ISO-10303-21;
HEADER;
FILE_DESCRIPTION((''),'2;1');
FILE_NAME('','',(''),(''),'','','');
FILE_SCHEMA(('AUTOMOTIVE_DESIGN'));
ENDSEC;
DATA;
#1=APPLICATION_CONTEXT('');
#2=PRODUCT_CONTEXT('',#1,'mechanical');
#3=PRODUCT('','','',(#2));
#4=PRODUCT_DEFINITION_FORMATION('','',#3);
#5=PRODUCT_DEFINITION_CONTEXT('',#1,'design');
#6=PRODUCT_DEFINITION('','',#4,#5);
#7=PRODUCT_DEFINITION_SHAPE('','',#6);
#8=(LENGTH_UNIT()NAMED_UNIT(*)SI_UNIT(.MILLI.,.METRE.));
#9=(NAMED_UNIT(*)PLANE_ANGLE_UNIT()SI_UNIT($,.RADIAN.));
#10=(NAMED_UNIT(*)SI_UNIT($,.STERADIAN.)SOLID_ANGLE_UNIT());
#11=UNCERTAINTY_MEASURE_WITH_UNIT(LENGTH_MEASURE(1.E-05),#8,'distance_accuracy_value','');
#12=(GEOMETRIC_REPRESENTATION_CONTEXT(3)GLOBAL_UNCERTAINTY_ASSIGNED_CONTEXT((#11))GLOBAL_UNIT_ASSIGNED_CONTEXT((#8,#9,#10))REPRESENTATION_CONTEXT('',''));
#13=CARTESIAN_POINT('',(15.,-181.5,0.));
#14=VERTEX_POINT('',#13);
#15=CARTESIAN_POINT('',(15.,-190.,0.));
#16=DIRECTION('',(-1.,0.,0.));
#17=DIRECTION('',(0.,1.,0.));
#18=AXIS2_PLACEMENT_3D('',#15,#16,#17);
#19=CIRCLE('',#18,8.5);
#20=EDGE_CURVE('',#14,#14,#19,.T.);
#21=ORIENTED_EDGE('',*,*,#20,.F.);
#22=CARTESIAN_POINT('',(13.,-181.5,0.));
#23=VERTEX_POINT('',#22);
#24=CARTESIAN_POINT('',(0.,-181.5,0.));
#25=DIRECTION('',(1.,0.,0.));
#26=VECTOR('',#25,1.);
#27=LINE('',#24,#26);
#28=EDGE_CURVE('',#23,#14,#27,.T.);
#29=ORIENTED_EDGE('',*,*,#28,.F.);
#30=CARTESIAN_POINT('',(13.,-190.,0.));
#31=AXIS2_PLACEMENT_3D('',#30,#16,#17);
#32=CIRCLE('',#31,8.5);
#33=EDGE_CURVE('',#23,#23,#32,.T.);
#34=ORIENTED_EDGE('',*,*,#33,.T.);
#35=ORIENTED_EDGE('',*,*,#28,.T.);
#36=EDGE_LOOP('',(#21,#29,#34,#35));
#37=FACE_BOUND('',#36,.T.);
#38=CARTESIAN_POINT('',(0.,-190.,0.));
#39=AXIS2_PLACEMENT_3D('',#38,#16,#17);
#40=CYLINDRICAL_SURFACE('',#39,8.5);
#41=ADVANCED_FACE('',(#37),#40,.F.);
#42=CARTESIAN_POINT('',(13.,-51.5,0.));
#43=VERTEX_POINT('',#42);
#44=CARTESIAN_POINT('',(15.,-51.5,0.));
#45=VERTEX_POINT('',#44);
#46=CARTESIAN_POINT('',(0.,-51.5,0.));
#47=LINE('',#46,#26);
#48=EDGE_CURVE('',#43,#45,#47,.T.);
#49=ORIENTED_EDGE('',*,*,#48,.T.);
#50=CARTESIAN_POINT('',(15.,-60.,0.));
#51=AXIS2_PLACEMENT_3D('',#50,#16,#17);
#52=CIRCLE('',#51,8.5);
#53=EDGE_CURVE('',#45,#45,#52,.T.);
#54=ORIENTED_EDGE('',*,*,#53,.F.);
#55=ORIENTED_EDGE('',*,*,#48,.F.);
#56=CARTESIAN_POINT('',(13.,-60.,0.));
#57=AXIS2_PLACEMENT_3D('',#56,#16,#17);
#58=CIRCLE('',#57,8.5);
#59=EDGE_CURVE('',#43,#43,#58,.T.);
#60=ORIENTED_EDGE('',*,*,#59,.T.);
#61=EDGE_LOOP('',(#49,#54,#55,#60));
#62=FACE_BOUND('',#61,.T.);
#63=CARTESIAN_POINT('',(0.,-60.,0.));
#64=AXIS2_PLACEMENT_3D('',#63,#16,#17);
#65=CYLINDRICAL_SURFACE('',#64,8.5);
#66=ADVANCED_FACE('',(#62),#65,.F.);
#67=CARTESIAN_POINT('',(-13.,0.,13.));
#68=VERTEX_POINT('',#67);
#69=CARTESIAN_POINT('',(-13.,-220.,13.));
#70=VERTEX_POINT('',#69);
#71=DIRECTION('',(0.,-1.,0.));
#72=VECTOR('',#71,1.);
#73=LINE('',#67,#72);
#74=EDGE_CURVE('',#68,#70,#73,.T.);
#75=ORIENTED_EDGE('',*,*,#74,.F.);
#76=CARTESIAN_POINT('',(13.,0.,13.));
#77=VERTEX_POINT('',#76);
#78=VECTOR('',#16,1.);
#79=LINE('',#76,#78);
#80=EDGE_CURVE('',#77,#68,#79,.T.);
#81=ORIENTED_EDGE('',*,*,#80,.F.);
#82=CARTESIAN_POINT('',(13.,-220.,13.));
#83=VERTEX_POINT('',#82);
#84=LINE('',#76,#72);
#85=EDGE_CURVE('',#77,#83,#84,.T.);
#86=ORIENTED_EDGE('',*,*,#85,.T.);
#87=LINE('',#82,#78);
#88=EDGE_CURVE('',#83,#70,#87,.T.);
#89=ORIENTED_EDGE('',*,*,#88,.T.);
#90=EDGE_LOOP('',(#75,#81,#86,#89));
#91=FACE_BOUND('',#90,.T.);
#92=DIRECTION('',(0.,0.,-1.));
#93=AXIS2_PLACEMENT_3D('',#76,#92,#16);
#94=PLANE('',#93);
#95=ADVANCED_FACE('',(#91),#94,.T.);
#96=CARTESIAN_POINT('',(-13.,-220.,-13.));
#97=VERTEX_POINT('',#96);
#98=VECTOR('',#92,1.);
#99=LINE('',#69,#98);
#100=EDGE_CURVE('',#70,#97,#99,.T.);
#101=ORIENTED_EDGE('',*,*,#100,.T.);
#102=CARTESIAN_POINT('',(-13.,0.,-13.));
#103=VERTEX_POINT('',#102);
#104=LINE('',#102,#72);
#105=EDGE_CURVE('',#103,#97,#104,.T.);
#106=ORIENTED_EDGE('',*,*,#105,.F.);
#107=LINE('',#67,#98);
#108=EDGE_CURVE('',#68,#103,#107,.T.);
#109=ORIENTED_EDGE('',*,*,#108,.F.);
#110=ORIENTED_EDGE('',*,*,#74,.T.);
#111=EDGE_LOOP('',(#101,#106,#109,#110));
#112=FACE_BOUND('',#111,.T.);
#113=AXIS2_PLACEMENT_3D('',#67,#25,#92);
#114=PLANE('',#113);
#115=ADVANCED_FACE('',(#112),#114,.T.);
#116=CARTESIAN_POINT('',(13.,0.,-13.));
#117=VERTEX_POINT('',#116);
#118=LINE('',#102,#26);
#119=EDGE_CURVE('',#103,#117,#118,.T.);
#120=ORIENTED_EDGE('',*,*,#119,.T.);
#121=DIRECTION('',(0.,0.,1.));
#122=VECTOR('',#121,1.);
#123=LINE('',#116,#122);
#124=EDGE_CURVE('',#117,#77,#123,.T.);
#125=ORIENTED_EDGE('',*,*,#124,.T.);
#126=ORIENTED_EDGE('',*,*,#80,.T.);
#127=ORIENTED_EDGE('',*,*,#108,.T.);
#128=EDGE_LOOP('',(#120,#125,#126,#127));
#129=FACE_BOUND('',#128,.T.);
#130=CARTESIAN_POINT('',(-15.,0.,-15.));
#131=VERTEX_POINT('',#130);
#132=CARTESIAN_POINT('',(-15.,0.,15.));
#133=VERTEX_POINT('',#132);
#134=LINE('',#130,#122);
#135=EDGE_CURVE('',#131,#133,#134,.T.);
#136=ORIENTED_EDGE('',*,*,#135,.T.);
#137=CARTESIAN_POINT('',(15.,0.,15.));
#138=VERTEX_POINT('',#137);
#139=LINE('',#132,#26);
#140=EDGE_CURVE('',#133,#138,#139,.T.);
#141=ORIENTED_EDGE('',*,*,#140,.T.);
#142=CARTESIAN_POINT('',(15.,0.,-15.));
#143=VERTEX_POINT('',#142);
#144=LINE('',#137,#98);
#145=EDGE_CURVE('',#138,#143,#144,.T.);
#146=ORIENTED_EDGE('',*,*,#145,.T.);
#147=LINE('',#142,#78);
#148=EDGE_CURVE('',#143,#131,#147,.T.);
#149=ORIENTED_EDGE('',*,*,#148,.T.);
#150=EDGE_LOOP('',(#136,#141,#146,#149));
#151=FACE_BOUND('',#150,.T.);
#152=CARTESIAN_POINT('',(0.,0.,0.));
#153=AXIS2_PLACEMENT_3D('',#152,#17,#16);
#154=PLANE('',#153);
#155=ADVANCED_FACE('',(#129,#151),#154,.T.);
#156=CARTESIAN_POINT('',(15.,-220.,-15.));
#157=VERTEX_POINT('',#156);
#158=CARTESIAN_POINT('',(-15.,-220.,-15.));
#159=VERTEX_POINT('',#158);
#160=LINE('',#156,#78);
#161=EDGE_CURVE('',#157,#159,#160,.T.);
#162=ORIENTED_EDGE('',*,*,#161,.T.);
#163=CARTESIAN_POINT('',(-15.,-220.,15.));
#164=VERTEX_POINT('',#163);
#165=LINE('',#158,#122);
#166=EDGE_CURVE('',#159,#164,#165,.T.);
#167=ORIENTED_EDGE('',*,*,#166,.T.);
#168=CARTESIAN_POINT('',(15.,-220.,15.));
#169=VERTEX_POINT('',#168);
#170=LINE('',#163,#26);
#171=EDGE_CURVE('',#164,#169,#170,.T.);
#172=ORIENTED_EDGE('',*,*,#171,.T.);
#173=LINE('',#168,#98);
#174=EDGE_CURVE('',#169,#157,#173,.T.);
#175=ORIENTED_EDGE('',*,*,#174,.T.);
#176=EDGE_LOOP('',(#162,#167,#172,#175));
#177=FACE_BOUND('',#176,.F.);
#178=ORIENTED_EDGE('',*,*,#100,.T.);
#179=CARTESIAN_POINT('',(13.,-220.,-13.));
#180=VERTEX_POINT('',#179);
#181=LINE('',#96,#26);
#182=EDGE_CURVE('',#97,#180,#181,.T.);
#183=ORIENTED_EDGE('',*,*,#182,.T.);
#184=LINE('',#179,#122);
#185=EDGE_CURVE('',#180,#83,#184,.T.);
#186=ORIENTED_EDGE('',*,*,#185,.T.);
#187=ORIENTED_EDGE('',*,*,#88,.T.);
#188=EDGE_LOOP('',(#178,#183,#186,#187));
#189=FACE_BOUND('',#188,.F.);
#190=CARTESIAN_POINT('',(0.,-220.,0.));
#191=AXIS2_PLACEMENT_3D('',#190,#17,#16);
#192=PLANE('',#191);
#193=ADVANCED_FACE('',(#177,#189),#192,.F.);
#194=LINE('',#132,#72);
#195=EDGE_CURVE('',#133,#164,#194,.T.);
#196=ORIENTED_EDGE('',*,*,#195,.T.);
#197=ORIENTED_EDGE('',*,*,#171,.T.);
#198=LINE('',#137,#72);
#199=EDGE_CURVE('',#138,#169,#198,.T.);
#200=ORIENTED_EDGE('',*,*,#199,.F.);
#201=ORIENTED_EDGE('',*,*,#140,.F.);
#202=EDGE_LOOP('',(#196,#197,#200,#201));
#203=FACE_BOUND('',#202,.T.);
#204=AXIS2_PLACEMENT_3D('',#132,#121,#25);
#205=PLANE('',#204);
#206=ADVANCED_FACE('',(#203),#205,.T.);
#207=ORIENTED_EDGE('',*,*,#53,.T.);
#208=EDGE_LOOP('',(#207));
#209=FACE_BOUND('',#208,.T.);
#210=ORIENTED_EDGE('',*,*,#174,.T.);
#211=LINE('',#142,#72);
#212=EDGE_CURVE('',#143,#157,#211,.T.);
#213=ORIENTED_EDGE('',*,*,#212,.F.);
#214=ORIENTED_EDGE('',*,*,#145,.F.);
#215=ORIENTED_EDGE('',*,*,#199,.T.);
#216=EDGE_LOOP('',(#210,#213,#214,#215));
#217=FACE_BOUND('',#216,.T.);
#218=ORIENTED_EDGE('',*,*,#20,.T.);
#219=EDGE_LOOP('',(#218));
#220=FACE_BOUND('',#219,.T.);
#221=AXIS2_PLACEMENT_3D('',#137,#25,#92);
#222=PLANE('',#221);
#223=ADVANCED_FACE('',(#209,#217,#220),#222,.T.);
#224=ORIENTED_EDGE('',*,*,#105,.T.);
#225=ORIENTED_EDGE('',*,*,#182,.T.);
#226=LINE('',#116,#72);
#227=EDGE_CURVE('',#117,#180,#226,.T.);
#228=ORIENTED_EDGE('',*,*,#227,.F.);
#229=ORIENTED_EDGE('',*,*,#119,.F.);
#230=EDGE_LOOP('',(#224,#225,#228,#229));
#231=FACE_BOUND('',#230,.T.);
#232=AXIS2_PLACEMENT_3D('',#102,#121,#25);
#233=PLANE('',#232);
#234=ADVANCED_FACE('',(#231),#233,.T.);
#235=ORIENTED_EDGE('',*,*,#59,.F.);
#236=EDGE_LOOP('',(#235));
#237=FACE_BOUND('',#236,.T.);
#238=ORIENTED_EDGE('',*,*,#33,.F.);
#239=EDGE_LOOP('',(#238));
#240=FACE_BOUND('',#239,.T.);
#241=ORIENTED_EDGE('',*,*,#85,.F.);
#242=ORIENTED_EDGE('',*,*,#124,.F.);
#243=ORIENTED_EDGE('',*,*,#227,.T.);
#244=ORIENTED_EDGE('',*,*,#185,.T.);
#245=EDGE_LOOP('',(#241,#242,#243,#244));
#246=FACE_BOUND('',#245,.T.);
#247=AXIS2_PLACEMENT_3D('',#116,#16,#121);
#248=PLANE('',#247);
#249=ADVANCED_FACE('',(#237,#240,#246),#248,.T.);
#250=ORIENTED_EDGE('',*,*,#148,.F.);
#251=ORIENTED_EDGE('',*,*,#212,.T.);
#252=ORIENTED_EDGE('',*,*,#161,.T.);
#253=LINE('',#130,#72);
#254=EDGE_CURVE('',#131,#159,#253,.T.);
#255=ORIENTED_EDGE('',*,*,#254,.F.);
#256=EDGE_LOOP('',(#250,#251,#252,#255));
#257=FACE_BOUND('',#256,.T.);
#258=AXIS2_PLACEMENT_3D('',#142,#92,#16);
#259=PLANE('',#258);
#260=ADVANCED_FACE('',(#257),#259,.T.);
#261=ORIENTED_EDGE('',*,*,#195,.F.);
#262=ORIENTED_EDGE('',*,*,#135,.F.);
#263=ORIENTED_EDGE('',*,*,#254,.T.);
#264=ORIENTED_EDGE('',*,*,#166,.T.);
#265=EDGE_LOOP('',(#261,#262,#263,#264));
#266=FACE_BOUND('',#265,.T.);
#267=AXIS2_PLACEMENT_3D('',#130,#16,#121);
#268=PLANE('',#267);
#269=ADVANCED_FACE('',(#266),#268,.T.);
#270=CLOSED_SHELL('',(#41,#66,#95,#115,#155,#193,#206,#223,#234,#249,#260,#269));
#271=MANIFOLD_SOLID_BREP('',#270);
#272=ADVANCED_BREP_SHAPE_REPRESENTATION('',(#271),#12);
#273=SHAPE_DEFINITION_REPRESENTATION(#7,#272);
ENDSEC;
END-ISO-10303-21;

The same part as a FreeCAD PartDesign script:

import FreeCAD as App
import Part
import Sketcher
Q = App.Units.Quantity

doc = App.newDocument("Part")
params = doc.addObject("Spreadsheet::Sheet", "Params")
for row, (alias, value) in enumerate([
    ("sketch1_width", "30 mm"),
    ("pad1_length", "220 mm"),
    ("sketch2_diameter", "17 mm"),
], start=1):
    params.set(f"A{row}", alias)
    params.set(f"B{row}", "=" + value)
    params.setAlias(f"B{row}", alias)

body = doc.addObject("PartDesign::Body", "Body")

# Sketch on XZ plane
sketch1 = body.newObject("Sketcher::SketchObject", "Sketch")
sketch1.AttachmentSupport = (doc.getObject("XZ_Plane"), [""])
sketch1.MapMode = "FlatFace"
sketch1.addGeometry(Part.LineSegment(App.Vector(-15, -15, 0), App.Vector(-15, 15, 0)), False)
sketch1.addGeometry(Part.LineSegment(App.Vector(-15, 15, 0), App.Vector(15, 15, 0)), False)
sketch1.addGeometry(Part.LineSegment(App.Vector(15, 15, 0), App.Vector(15, -15, 0)), False)
sketch1.addGeometry(Part.LineSegment(App.Vector(15, -15, 0), App.Vector(-15, -15, 0)), False)
sketch1.addGeometry(Part.LineSegment(App.Vector(13, -13, 0), App.Vector(13, 13, 0)), False)
sketch1.addGeometry(Part.LineSegment(App.Vector(13, 13, 0), App.Vector(-13, 13, 0)), False)
sketch1.addGeometry(Part.LineSegment(App.Vector(-13, 13, 0), App.Vector(-13, -13, 0)), False)
sketch1.addGeometry(Part.LineSegment(App.Vector(-13, -13, 0), App.Vector(13, -13, 0)), False)
sketch1.addConstraint(Sketcher.Constraint("Coincident", 0, 2, 1, 1))
sketch1.addConstraint(Sketcher.Constraint("Coincident", 1, 2, 2, 1))
sketch1.addConstraint(Sketcher.Constraint("Coincident", 2, 2, 3, 1))
sketch1.addConstraint(Sketcher.Constraint("Coincident", 3, 2, 0, 1))
sketch1.addConstraint(Sketcher.Constraint("Coincident", 4, 2, 5, 1))
sketch1.addConstraint(Sketcher.Constraint("Coincident", 5, 2, 6, 1))
sketch1.addConstraint(Sketcher.Constraint("Coincident", 6, 2, 7, 1))
sketch1.addConstraint(Sketcher.Constraint("Coincident", 7, 2, 4, 1))
sketch1.addConstraint(Sketcher.Constraint("Vertical", 0))
sketch1.addConstraint(Sketcher.Constraint("Horizontal", 1))
sketch1.addConstraint(Sketcher.Constraint("Vertical", 2))
sketch1.addConstraint(Sketcher.Constraint("Horizontal", 3))
sketch1.addConstraint(Sketcher.Constraint("Vertical", 4))
sketch1.addConstraint(Sketcher.Constraint("Horizontal", 5))
sketch1.addConstraint(Sketcher.Constraint("Vertical", 6))
sketch1.addConstraint(Sketcher.Constraint("Horizontal", 7))
sketch1.addConstraint(Sketcher.Constraint("Symmetric", 0, 2, 2, 2, -1, 1))
sketch1.addConstraint(Sketcher.Constraint("Symmetric", 4, 2, 6, 2, -1, 1))
sketch1.addConstraint(Sketcher.Constraint("Equal", 3, 0))
sketch1.addConstraint(Sketcher.Constraint("Equal", 7, 4))
sketch1.addConstraint(Sketcher.Constraint("DistanceX", 1, 1, 1, 2, Q("30 mm")))
sketch1.addConstraint(Sketcher.Constraint("DistanceX", 4, 2, 1, 2, Q("2 mm")))
sketch1.setExpression("Constraints[20]", "Params.sketch1_width")
pad1 = body.newObject("PartDesign::Pad", "Pad")
pad1.Profile = sketch1
pad1.setExpression("Length", "Params.pad1_length")

# Sketch on YZ plane
sketch2 = body.newObject("Sketcher::SketchObject", "Sketch001")
sketch2.AttachmentSupport = (doc.getObject("YZ_Plane"), [""])
sketch2.MapMode = "FlatFace"
sketch2.addGeometry(Part.Circle(App.Vector(-60, 0, 0), App.Vector(0, 0, 1), 8), False)
sketch2.addGeometry(Part.Circle(App.Vector(-190, 0, 0), App.Vector(0, 0, 1), 8), False)
sketch2.addConstraint(Sketcher.Constraint("Equal", 0, 1))
sketch2.addConstraint(Sketcher.Constraint("PointOnObject", 0, 3, -1))
sketch2.addConstraint(Sketcher.Constraint("PointOnObject", 1, 3, -1))
sketch2.addConstraint(Sketcher.Constraint("Diameter", 0, Q("17 mm")))
sketch2.addConstraint(Sketcher.Constraint("DistanceX", 0, 3, -1, 1, Q("60 mm")))
sketch2.addConstraint(Sketcher.Constraint("DistanceX", 1, 3, -1, 1, Q("190 mm")))
sketch2.setExpression("Constraints[3]", "Params.sketch2_diameter")
pocket1 = body.newObject("PartDesign::Pocket", "Pocket")
pocket1.Profile = sketch2
pocket1.Type = "ThroughAll"
pocket1.Reversed = True

doc.recompute()
